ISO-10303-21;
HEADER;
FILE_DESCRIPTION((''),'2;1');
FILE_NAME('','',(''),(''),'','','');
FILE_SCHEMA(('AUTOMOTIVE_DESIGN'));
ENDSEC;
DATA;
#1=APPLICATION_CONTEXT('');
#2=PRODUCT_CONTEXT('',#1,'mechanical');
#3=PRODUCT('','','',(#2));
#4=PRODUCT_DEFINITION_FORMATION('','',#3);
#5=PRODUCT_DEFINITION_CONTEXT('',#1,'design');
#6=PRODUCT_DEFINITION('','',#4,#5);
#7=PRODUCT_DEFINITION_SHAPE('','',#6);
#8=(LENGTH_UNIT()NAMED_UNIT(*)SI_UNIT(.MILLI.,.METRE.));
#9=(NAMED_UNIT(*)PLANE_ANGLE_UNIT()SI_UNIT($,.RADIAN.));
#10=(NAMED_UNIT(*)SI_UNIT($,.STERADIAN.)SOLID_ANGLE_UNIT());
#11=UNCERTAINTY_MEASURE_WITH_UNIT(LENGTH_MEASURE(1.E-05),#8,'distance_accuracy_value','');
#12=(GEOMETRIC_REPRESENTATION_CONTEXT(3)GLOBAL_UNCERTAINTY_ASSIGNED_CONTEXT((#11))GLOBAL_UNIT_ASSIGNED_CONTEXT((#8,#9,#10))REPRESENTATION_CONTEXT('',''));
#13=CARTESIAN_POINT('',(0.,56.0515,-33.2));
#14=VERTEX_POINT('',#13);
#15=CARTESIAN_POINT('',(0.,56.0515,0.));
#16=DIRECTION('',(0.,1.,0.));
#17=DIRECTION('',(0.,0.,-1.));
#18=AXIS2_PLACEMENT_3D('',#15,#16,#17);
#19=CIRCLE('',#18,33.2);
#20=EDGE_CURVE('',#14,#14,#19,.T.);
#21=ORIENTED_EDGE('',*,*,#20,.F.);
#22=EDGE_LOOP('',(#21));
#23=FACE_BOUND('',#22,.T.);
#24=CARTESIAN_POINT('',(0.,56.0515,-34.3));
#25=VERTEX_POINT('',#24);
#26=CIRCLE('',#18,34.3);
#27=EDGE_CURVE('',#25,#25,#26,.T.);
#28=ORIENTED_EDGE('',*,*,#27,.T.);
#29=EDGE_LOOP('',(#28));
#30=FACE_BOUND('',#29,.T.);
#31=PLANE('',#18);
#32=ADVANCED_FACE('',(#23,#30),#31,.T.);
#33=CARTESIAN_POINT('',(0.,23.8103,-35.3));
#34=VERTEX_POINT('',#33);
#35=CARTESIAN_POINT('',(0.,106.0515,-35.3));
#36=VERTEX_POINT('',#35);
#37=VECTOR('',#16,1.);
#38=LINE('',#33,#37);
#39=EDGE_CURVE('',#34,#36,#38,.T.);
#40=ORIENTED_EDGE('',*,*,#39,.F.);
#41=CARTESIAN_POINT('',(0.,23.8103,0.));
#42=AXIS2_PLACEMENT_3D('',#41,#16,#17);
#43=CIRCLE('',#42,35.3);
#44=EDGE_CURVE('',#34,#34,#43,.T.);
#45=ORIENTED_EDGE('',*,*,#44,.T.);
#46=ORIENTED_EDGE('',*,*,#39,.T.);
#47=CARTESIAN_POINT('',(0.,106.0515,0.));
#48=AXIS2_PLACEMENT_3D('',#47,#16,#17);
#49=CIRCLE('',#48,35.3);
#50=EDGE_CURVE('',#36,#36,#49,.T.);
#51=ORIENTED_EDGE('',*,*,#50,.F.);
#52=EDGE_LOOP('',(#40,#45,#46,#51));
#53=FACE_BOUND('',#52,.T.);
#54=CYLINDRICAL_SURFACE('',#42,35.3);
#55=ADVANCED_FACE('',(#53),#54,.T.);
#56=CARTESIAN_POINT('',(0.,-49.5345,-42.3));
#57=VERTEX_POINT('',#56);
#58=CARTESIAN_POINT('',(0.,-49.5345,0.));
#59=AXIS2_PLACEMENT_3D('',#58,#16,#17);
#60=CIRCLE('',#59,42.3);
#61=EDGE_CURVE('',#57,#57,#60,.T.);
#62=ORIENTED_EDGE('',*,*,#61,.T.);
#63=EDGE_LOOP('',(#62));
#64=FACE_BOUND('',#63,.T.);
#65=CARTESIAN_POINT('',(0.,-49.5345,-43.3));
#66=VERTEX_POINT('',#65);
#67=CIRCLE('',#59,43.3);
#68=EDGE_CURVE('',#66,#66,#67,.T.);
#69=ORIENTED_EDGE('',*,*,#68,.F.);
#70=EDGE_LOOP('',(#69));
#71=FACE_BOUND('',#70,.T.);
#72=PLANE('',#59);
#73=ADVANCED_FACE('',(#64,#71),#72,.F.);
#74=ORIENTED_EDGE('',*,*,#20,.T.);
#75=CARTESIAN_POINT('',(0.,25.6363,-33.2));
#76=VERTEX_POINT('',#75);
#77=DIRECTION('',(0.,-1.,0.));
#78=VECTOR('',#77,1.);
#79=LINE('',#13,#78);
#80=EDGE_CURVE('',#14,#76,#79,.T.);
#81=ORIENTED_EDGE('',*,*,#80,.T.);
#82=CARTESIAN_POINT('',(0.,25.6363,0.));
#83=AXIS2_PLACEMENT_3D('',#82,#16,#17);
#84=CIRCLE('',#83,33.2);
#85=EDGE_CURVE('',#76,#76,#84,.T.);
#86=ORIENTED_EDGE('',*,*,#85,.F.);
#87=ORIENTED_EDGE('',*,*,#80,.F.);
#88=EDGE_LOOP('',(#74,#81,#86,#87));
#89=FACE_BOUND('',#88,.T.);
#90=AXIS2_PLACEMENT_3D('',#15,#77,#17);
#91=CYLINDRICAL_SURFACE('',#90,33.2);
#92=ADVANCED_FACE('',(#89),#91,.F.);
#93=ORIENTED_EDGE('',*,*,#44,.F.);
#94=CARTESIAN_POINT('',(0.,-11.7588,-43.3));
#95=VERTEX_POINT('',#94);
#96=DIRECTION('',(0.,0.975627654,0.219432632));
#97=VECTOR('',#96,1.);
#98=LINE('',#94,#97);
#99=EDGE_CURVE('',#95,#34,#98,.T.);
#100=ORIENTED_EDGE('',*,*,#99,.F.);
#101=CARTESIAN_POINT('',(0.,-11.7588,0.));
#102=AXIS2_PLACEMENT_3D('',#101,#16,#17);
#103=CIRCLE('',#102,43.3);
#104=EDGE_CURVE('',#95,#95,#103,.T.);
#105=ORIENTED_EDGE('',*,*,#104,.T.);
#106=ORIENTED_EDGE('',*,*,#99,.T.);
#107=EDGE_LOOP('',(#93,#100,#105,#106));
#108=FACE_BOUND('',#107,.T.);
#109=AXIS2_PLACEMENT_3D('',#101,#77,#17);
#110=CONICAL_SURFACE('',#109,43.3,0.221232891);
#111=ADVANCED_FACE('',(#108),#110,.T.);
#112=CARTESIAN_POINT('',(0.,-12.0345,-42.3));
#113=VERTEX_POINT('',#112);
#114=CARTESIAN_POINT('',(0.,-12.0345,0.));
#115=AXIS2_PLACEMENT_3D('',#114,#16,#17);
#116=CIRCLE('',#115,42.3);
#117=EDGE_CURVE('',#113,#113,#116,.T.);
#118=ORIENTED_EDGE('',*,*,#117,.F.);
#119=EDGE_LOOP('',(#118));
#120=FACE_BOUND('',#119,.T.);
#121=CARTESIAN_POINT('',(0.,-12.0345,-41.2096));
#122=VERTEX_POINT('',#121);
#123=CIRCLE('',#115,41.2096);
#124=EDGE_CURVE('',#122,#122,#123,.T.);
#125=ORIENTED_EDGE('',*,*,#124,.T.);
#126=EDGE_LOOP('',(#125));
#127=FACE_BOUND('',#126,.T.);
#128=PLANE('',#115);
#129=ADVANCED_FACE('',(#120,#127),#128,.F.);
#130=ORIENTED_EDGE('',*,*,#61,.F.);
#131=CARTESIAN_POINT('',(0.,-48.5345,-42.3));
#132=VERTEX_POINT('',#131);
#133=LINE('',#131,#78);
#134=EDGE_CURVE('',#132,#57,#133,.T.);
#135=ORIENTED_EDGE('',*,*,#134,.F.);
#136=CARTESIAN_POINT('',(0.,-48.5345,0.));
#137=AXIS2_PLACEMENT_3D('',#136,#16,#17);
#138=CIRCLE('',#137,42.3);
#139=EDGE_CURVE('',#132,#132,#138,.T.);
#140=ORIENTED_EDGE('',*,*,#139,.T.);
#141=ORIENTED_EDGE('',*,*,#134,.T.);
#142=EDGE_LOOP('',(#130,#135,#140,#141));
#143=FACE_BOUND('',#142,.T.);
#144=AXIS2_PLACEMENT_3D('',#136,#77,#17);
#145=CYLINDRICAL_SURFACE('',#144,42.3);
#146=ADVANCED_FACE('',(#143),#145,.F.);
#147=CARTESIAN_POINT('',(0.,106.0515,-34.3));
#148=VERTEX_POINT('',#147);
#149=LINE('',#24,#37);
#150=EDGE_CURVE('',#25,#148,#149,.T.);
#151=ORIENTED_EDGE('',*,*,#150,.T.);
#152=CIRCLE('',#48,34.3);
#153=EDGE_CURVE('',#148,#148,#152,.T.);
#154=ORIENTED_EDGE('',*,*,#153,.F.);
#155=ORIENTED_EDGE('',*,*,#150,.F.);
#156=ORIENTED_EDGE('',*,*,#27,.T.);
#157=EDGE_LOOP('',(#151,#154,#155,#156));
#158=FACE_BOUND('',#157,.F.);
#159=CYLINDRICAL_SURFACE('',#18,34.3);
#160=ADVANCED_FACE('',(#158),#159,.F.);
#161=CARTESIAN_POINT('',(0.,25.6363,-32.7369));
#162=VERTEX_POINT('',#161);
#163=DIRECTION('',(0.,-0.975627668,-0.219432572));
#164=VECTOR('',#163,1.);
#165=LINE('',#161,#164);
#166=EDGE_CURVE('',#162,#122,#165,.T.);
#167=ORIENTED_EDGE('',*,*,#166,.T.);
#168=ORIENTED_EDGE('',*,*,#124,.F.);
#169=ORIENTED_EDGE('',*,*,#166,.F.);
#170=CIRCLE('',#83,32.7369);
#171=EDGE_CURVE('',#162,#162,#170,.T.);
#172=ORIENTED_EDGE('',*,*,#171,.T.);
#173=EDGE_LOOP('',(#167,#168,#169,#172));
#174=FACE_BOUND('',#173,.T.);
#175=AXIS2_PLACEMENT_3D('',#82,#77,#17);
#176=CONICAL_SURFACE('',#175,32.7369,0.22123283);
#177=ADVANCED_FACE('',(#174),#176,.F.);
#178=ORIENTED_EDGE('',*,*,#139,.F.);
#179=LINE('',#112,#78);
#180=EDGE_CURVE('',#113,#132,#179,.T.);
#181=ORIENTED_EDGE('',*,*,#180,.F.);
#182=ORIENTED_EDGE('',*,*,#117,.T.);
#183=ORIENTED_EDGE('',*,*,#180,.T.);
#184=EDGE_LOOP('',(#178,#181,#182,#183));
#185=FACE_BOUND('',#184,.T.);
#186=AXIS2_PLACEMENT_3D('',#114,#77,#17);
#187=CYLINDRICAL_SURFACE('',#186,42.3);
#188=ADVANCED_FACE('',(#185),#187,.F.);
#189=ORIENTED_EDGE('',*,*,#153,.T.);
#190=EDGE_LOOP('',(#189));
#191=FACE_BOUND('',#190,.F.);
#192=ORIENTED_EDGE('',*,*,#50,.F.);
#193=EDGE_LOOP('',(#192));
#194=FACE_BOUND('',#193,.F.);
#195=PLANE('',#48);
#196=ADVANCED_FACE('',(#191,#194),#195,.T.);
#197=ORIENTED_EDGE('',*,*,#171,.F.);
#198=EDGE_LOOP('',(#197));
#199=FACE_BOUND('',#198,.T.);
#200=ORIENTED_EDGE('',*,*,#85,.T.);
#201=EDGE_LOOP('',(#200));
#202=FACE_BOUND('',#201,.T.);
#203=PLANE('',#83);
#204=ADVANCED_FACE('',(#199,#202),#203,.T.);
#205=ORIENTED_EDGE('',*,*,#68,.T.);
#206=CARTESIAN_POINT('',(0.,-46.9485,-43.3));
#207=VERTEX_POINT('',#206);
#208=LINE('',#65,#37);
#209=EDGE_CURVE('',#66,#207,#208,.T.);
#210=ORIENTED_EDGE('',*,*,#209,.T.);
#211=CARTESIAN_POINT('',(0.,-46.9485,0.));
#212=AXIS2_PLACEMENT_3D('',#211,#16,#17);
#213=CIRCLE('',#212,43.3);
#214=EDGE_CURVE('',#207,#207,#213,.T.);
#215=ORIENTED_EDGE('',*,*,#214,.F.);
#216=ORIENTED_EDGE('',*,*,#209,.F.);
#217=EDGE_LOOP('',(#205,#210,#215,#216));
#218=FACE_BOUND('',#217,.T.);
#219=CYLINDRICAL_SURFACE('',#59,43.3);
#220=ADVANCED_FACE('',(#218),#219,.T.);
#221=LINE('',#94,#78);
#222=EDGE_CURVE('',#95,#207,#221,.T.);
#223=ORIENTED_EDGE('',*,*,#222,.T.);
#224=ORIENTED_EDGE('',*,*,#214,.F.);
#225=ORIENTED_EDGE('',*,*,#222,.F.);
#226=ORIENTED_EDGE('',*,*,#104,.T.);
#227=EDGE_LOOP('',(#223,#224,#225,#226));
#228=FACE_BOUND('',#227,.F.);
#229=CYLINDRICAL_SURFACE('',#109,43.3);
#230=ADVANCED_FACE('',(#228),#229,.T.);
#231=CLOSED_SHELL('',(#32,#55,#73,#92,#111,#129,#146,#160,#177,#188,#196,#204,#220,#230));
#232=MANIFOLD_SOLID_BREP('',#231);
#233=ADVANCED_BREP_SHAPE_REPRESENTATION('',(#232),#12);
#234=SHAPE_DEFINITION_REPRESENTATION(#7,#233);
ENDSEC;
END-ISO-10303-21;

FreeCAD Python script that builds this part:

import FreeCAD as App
import Part
import Sketcher
from FreeCAD import Vector


def add_polygon(sketch, points):
    """Adds a closed chain of lines whose ends are joined by coincident constraints."""
    first, n = sketch.GeometryCount, len(points)
    for a, b in zip(points, points[1:] + points[:1]):
        sketch.addGeometry(Part.LineSegment(App.Vector(*a, 0), App.Vector(*b, 0)), False)
    for i in range(n):
        sketch.addConstraint(Sketcher.Constraint("Coincident", first + i, 2, first + (i + 1) % n, 1))

doc = App.newDocument("Part")
body = doc.addObject("PartDesign::Body", "Body")

# Sketch on YZ plane
sketch1 = body.newObject("Sketcher::SketchObject", "Sketch")
sketch1.AttachmentSupport = (doc.getObject("YZ_Plane"), [""])
sketch1.MapMode = "FlatFace"
add_polygon(sketch1, [(106.0515, -34.3), (56.0515, -34.3), (56.0515, -33.2), (25.6363, -33.2), (25.6363, -32.7369), (-12.0345, -41.2096), (-12.0345, -42.3), (-49.5345, -42.3), (-49.5345, -43.3), (-11.7588, -43.3), (23.8103, -35.3), (106.0515, -35.3)])  # lines 0-11
sketch1.addConstraint(Sketcher.Constraint("Horizontal", 0))
sketch1.addConstraint(Sketcher.Constraint("Vertical", 1))
sketch1.addConstraint(Sketcher.Constraint("Horizontal", 2))
sketch1.addConstraint(Sketcher.Constraint("Vertical", 3))
sketch1.addConstraint(Sketcher.Constraint("Vertical", 5))
sketch1.addConstraint(Sketcher.Constraint("Horizontal", 6))
sketch1.addConstraint(Sketcher.Constraint("Vertical", 7))
sketch1.addConstraint(Sketcher.Constraint("Horizontal", 8))
sketch1.addConstraint(Sketcher.Constraint("Horizontal", 10))
sketch1.addConstraint(Sketcher.Constraint("Vertical", 11))
sketch1.addConstraint(Sketcher.Constraint("DistanceX", 0, 2, 0, 1, 50.0))
sketch1.addConstraint(Sketcher.Constraint("DistanceY", 7, 2, 7, 1, 1.0))
sketch1.addConstraint(Sketcher.Constraint("DistanceY", 11, 1, 11, 2, 1.0))
sketch1.addConstraint(Sketcher.Constraint("DistanceX", 6, 2, 6, 1, 37.5))
sketch1.addConstraint(Sketcher.Constraint("DistanceY", 0, 2, -1, 1, 34.3))
sketch1.addConstraint(Sketcher.Constraint("DistanceY", 1, 2, -1, 1, 33.2))
sketch1.addConstraint(Sketcher.Constraint("DistanceY", 5, 2, -1, 1, 42.3))
sketch1.addConstraint(Sketcher.Constraint("DistanceY", 3, 1, 3, 2, 0.463))
sketch1.addConstraint(Sketcher.Constraint("DistanceX", 2, 2, 2, 1, 30.4152))
sketch1.addConstraint(Sketcher.Constraint("DistanceX", 8, 1, 8, 2, 37.7757))
sketch1.addConstraint(Sketcher.Constraint("DistanceX", 10, 1, 10, 2, 82.2412))
sketch1.addConstraint(Sketcher.Constraint("DistanceY", 5, 2, 5, 1, 1.0904))
sketch1.addConstraint(Sketcher.Constraint("DistanceX", 4, 2, 0, 2, 68.086))
sketch1.addConstraint(Sketcher.Constraint("DistanceX", -1, 1, 0, 2, 56.0515))
revolution = body.newObject("PartDesign::Revolution", "Revolution")
revolution.Profile = sketch1
revolution.ReferenceAxis = (sketch1, ["H_Axis"])
revolution.Angle = 360

doc.recompute()
